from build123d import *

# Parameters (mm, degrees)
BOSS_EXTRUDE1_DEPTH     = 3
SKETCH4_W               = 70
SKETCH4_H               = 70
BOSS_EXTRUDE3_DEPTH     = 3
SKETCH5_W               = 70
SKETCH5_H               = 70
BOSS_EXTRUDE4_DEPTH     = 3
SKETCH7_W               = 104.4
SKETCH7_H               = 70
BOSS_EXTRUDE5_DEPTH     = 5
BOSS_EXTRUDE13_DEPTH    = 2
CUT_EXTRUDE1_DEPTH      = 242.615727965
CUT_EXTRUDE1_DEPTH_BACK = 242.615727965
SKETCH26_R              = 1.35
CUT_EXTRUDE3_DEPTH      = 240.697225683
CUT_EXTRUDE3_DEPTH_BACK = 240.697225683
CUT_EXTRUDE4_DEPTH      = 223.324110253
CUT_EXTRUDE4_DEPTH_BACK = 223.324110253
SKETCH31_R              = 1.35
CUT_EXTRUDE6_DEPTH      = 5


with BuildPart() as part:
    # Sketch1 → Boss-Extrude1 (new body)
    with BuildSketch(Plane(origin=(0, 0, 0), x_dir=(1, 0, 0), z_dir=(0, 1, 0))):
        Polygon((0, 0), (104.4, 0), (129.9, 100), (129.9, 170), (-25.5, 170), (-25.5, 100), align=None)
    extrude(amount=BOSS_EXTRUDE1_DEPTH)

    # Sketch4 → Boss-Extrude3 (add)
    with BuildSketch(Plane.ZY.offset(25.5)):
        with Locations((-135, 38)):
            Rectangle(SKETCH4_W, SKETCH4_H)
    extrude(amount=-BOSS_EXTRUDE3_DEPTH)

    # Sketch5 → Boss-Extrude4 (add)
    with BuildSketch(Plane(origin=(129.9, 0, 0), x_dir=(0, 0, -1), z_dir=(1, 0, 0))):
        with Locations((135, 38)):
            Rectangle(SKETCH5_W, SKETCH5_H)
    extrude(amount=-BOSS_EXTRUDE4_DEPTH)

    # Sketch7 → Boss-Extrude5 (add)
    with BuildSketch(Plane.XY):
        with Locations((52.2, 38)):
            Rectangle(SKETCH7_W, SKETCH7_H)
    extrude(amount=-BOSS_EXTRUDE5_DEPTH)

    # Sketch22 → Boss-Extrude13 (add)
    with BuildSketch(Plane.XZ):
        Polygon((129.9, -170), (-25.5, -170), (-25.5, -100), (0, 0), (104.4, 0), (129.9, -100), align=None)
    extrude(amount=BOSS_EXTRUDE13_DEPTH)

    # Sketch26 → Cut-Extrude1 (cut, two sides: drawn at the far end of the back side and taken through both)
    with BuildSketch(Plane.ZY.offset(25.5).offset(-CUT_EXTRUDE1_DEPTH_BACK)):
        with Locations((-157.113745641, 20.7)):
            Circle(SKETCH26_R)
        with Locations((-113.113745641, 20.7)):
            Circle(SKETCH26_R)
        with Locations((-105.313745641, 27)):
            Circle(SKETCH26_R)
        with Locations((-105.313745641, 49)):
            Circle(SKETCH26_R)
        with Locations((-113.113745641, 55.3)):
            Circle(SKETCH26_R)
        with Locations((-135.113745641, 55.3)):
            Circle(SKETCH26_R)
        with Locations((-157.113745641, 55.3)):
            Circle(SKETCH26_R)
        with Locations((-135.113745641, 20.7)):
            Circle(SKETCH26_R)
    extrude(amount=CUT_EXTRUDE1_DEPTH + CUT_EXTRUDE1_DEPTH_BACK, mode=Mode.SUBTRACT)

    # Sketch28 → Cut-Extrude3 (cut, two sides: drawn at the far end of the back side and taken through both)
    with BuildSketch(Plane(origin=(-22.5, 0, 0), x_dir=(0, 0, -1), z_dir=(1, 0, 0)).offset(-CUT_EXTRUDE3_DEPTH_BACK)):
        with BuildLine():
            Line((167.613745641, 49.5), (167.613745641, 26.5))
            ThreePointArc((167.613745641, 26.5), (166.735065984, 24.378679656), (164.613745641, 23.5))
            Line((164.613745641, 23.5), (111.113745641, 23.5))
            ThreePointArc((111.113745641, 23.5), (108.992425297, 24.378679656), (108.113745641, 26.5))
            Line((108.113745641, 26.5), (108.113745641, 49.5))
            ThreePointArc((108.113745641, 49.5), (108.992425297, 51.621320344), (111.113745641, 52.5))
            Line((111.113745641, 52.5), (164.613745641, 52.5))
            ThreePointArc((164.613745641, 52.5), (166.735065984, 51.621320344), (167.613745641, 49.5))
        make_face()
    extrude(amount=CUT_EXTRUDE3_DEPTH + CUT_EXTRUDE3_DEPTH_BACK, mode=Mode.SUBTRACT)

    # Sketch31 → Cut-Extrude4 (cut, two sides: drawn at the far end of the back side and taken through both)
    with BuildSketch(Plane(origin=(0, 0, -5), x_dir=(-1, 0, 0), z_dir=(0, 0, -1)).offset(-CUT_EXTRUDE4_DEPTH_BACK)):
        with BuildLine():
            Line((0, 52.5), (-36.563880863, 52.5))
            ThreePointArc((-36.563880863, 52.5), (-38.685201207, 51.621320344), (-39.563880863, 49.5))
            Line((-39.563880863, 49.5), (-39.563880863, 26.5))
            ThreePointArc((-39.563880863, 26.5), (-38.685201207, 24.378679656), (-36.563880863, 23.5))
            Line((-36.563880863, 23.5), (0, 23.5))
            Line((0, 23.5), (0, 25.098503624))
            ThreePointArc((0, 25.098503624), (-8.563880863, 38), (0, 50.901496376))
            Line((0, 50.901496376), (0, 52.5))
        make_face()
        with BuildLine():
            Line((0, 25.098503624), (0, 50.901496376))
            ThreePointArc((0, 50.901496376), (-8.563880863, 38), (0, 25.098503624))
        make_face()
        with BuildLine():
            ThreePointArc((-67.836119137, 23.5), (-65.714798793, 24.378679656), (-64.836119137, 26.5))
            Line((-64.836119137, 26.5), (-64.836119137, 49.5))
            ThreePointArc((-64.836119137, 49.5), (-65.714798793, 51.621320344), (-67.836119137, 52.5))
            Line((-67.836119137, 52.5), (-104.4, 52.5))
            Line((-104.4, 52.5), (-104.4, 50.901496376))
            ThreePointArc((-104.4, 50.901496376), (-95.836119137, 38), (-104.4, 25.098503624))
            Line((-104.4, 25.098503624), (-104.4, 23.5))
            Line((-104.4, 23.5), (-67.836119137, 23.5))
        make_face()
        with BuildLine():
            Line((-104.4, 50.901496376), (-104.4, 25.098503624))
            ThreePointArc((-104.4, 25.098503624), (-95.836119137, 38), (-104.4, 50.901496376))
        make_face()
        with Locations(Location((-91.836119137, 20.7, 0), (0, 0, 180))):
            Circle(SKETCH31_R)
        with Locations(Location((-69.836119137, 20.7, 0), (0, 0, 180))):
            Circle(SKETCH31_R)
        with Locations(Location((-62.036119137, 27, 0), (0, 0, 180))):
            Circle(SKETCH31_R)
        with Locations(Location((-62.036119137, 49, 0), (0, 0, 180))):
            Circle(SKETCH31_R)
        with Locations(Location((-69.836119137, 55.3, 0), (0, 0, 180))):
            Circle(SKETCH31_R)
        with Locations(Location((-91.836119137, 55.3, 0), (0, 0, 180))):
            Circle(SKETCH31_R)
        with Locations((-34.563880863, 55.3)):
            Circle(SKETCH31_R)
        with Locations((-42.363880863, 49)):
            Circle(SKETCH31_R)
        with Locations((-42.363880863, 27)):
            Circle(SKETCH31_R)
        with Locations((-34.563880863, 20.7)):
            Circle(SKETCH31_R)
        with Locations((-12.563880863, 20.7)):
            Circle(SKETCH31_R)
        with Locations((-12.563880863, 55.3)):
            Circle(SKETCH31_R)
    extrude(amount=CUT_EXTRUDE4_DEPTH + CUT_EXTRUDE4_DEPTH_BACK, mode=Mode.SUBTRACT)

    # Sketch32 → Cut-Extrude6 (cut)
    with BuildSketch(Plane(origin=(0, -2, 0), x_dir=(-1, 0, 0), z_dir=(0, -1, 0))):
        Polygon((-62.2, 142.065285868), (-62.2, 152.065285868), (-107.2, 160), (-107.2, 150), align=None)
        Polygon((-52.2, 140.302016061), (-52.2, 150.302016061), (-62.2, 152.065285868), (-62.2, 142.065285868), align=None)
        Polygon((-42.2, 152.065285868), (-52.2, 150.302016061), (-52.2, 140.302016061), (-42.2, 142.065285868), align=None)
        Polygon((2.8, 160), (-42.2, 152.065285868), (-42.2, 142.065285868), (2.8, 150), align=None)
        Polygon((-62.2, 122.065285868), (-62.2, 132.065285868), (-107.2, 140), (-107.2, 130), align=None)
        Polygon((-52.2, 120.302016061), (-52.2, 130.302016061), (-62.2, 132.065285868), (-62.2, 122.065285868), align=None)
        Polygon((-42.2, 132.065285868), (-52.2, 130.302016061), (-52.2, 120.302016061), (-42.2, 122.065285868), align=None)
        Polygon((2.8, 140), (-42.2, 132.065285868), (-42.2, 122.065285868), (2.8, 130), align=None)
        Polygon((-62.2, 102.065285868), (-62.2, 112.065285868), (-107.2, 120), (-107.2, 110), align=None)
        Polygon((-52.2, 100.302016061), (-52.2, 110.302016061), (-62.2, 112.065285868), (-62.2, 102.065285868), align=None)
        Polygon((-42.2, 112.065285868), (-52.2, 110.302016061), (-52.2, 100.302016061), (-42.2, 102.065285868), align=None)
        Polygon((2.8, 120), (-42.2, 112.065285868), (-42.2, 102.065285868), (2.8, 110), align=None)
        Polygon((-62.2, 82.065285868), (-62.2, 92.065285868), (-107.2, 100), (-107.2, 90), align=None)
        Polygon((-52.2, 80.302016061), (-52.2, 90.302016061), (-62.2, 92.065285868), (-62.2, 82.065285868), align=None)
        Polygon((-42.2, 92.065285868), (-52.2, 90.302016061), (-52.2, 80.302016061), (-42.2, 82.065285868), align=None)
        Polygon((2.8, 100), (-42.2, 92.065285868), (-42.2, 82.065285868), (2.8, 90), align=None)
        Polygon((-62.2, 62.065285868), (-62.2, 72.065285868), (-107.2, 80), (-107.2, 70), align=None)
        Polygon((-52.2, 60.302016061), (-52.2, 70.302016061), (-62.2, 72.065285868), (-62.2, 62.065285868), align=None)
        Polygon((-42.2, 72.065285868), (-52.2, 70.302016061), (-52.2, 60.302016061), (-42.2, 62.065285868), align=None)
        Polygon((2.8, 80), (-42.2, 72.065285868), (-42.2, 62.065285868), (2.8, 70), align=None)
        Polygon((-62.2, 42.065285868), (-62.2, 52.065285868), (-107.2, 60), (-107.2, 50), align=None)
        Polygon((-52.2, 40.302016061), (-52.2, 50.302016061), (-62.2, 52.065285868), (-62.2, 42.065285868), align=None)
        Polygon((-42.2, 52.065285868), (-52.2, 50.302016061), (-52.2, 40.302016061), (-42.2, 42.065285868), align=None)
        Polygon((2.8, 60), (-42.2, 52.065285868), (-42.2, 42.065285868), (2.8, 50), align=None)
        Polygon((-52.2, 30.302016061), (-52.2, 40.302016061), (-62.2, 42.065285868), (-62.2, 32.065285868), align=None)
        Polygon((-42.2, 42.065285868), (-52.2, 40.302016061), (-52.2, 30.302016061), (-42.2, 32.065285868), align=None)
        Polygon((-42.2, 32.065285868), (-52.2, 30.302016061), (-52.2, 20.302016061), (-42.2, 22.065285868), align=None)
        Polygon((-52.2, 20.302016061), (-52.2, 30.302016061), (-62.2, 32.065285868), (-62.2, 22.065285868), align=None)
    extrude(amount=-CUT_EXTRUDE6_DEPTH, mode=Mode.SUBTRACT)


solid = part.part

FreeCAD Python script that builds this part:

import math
import FreeCAD as App
import Part
import Sketcher

V = App.Vector
Q = App.Units.Quantity

doc = App.newDocument("Part")
body = doc.addObject("PartDesign::Body", "Body")

# Sketch on XZ plane
sketch1 = doc.addObject("Sketcher::SketchObject", "Sketch")
body.addObject(sketch1)
sketch1.AttachmentSupport = (doc.XZ_Plane, [""])
sketch1.MapMode = "FlatFace"
sketch1.addGeometry([
    Part.LineSegment(V(0, 0, 0), V(104.4, 0, 0)),  # 0
    Part.LineSegment(V(104.4, 0, 0), V(129.9, -100, 0)),  # 1
    Part.LineSegment(V(129.9, -100, 0), V(129.9, -170, 0)),  # 2
    Part.LineSegment(V(129.9, -170, 0), V(-25.5, -170, 0)),  # 3
    Part.LineSegment(V(-25.5, -170, 0), V(-25.5, -100, 0)),  # 4
    Part.LineSegment(V(-25.5, -100, 0), V(0, 0, 0)),  # 5
], False)
sketch1.addConstraint([
    Sketcher.Constraint("Coincident", 0, 2, 1, 1),
    Sketcher.Constraint("Coincident", 1, 2, 2, 1),
    Sketcher.Constraint("Coincident", 2, 2, 3, 1),
    Sketcher.Constraint("Coincident", 3, 2, 4, 1),
    Sketcher.Constraint("Coincident", 4, 2, 5, 1),
    Sketcher.Constraint("Coincident", 5, 2, 0, 1),
    Sketcher.Constraint("Horizontal", 0),
    Sketcher.Constraint("Vertical", 2),
    Sketcher.Constraint("Horizontal", 3),
    Sketcher.Constraint("Vertical", 4),
    Sketcher.Constraint("Coincident", 5, 2, -1, 1),
    Sketcher.Constraint("Horizontal", 1, 2, 4, 2),
    Sketcher.Constraint("Equal", 1, 5),
    Sketcher.Constraint("DistanceY", 2, 2, 2, 1, 70.0),
    Sketcher.Constraint("DistanceX", 0, 1, 0, 2, 104.4),
    Sketcher.Constraint("DistanceX", 3, 2, 3, 1, 155.4),
    Sketcher.Constraint("DistanceY", 1, 2, -1, 1, 100.0),
])
pad1 = doc.addObject("PartDesign::Pad", "Pad")
body.addObject(pad1)
pad1.Profile = sketch1
pad1.Length = 3
pad1.Reversed = True

# Sketch on YZ plane
sketch2 = doc.addObject("Sketcher::SketchObject", "Sketch001")
body.addObject(sketch2)
sketch2.AttachmentSupport = (doc.YZ_Plane, [""])
sketch2.MapMode = "FlatFace"
sketch2.AttachmentOffset = App.Placement(V(0, 0, -25.5), App.Rotation())
sketch2.addGeometry([
    Part.LineSegment(V(73, -170, 0), V(3, -170, 0)),
    Part.LineSegment(V(3, -170, 0), V(3, -100, 0)),
    Part.LineSegment(V(3, -100, 0), V(73, -100, 0)),
    Part.LineSegment(V(73, -100, 0), V(73, -170, 0)),
], False)
sketch2.addConstraint([
    Sketcher.Constraint("Coincident", 0, 2, 1, 1),
    Sketcher.Constraint("Coincident", 1, 2, 2, 1),
    Sketcher.Constraint("Coincident", 2, 2, 3, 1),
    Sketcher.Constraint("Coincident", 3, 2, 0, 1),
    Sketcher.Constraint("Horizontal", 0),
    Sketcher.Constraint("Vertical", 1),
    Sketcher.Constraint("Horizontal", 2),
    Sketcher.Constraint("Vertical", 3),
    Sketcher.Constraint("Equal", 2, 1),
    Sketcher.Constraint("DistanceX", 0, 2, 0, 1, 70.0),
    Sketcher.Constraint("DistanceX", -1, 1, 0, 2, 3.0),
    Sketcher.Constraint("DistanceY", 0, 2, -1, 1, 170.0),
])
pad2 = doc.addObject("PartDesign::Pad", "Pad001")
body.addObject(pad2)
pad2.Profile = sketch2
pad2.Length = 3

# Sketch on YZ plane
sketch3 = doc.addObject("Sketcher::SketchObject", "Sketch002")
body.addObject(sketch3)
sketch3.AttachmentSupport = (doc.YZ_Plane, [""])
sketch3.MapMode = "FlatFace"
sketch3.AttachmentOffset = App.Placement(V(0, 0, 129.9), App.Rotation())
sketch3.addGeometry([
    Part.LineSegment(V(73, -100, 0), V(3, -100, 0)),
    Part.LineSegment(V(3, -100, 0), V(3, -170, 0)),
    Part.LineSegment(V(3, -170, 0), V(73, -170, 0)),
    Part.LineSegment(V(73, -170, 0), V(73, -100, 0)),
], False)
sketch3.addConstraint([
    Sketcher.Constraint("Coincident", 0, 2, 1, 1),
    Sketcher.Constraint("Coincident", 1, 2, 2, 1),
    Sketcher.Constraint("Coincident", 2, 2, 3, 1),
    Sketcher.Constraint("Coincident", 3, 2, 0, 1),
    Sketcher.Constraint("Horizontal", 0),
    Sketcher.Constraint("Vertical", 1),
    Sketcher.Constraint("Horizontal", 2),
    Sketcher.Constraint("Vertical", 3),
    Sketcher.Constraint("Equal", 2, 1),
    Sketcher.Constraint("DistanceX", 0, 2, 0, 1, 70.0),
    Sketcher.Constraint("DistanceX", -1, 1, 0, 2, 3.0),
    Sketcher.Constraint("DistanceY", 0, 2, -1, 1, 100.0),
])
pad3 = doc.addObject("PartDesign::Pad", "Pad002")
body.addObject(pad3)
pad3.Profile = sketch3
pad3.Length = 3
pad3.Reversed = True

# Sketch on XY plane
sketch4 = doc.addObject("Sketcher::SketchObject", "Sketch003")
body.addObject(sketch4)
sketch4.AttachmentSupport = (doc.XY_Plane, [""])
sketch4.MapMode = "FlatFace"
sketch4.addGeometry([
    Part.LineSegment(V(0, 73, 0), V(0, 3, 0)),
    Part.LineSegment(V(0, 3, 0), V(104.4, 3, 0)),
    Part.LineSegment(V(104.4, 3, 0), V(104.4, 73, 0)),
    Part.LineSegment(V(104.4, 73, 0), V(0, 73, 0)),
], False)
sketch4.addConstraint([
    Sketcher.Constraint("Coincident", 0, 2, 1, 1),
    Sketcher.Constraint("Coincident", 1, 2, 2, 1),
    Sketcher.Constraint("Coincident", 2, 2, 3, 1),
    Sketcher.Constraint("Coincident", 3, 2, 0, 1),
    Sketcher.Constraint("Vertical", 0),
    Sketcher.Constraint("Horizontal", 1),
    Sketcher.Constraint("Vertical", 2),
    Sketcher.Constraint("Horizontal", 3),
    Sketcher.Constraint("PointOnObject", 0, 2, -2),
    Sketcher.Constraint("DistanceY", 0, 2, 0, 1, 70.0),
    Sketcher.Constraint("DistanceX", 1, 1, 1, 2, 104.4),
    Sketcher.Constraint("DistanceY", -1, 1, 0, 2, 3.0),
])
pad4 = doc.addObject("PartDesign::Pad", "Pad003")
body.addObject(pad4)
pad4.Profile = sketch4
pad4.Length = 5
pad4.Reversed = True

# Sketch on XZ plane
sketch5 = doc.addObject("Sketcher::SketchObject", "Sketch004")
body.addObject(sketch5)
sketch5.AttachmentSupport = (doc.XZ_Plane, [""])
sketch5.MapMode = "FlatFace"
sketch5.addGeometry([
    Part.LineSegment(V(-25.5, -170, 0), V(129.9, -170, 0)),  # 0
    Part.LineSegment(V(129.9, -170, 0), V(129.9, -100, 0)),  # 1
    Part.LineSegment(V(129.9, -100, 0), V(104.4, 0, 0)),  # 2
    Part.LineSegment(V(104.4, 0, 0), V(0, 0, 0)),  # 3
    Part.LineSegment(V(0, 0, 0), V(-25.5, -100, 0)),  # 4
    Part.LineSegment(V(-25.5, -100, 0), V(-25.5, -170, 0)),  # 5
], False)
sketch5.addConstraint([
    Sketcher.Constraint("Coincident", 0, 2, 1, 1),
    Sketcher.Constraint("Coincident", 1, 2, 2, 1),
    Sketcher.Constraint("Coincident", 2, 2, 3, 1),
    Sketcher.Constraint("Coincident", 3, 2, 4, 1),
    Sketcher.Constraint("Coincident", 4, 2, 5, 1),
    Sketcher.Constraint("Coincident", 5, 2, 0, 1),
    Sketcher.Constraint("Horizontal", 0),
    Sketcher.Constraint("Vertical", 1),
    Sketcher.Constraint("Horizontal", 3),
    Sketcher.Constraint("Vertical", 5),
    Sketcher.Constraint("Coincident", 3, 2, -1, 1),
    Sketcher.Constraint("Horizontal", 1, 2, 4, 2),
    Sketcher.Constraint("Equal", 2, 4),
    Sketcher.Constraint("DistanceY", 1, 1, 1, 2, 70.0),
    Sketcher.Constraint("DistanceX", 0, 1, 0, 2, 155.4),
    Sketcher.Constraint("DistanceX", 3, 2, 3, 1, 104.4),
    Sketcher.Constraint("DistanceY", 0, 2, -1, 1, 170.0),
])
pad5 = doc.addObject("PartDesign::Pad", "Pad004")
body.addObject(pad5)
pad5.Profile = sketch5
pad5.Length = 2

# Sketch on YZ plane
sketch6 = doc.addObject("Sketcher::SketchObject", "Sketch005")
body.addObject(sketch6)
sketch6.AttachmentSupport = (doc.YZ_Plane, [""])
sketch6.MapMode = "FlatFace"
sketch6.AttachmentOffset = App.Placement(V(0, 0, -25.5), App.Rotation())
sketch6.addGeometry([
    Part.Circle(V(20.7, -157.113746, 0), V(0, 0, 1), 1.35),  # 0
    Part.Circle(V(20.7, -113.113746, 0), V(0, 0, 1), 1.35),  # 1
    Part.Circle(V(27, -105.313746, 0), V(0, 0, 1), 1.35),  # 2
    Part.Circle(V(49, -105.313746, 0), V(0, 0, 1), 1.35),  # 3
    Part.Circle(V(55.3, -113.113746, 0), V(0, 0, 1), 1.35),  # 4
    Part.Circle(V(55.3, -135.113746, 0), V(0, 0, 1), 1.35),  # 5
    Part.Circle(V(55.3, -157.113746, 0), V(0, 0, 1), 1.35),  # 6
    Part.Circle(V(20.7, -135.113746, 0), V(0, 0, 1), 1.35),  # 7
], False)
sketch6.addConstraint([
    Sketcher.Constraint("Equal", 0, 1),
    Sketcher.Constraint("Equal", 1, 2),
    Sketcher.Constraint("Equal", 2, 3),
    Sketcher.Constraint("Equal", 3, 4),
    Sketcher.Constraint("Equal", 4, 5),
    Sketcher.Constraint("Equal", 5, 6),
    Sketcher.Constraint("Equal", 6, 7),
    Sketcher.Constraint("Horizontal", 2, 3, 3, 3),
    Sketcher.Constraint("Horizontal", 1, 3, 4, 3),
    Sketcher.Constraint("Horizontal", 0, 3, 6, 3),
    Sketcher.Constraint("Horizontal", 5, 3, 7, 3),
    Sketcher.Constraint("Vertical", 0, 3, 1, 3),
    Sketcher.Constraint("Vertical", 4, 3, 5, 3),
    Sketcher.Constraint("Vertical", 5, 3, 6, 3),
    Sketcher.Constraint("Vertical", 1, 3, 7, 3),
    Sketcher.Constraint("Diameter", 0, 2.7),
    Sketcher.Constraint("DistanceX", -1, 1, 2, 3, 27.0),
    Sketcher.Constraint("DistanceX", -1, 1, 3, 3, 49.0),
    Sketcher.Constraint("DistanceY", 0, 3, 1, 3, 44.0),
    Sketcher.Constraint("DistanceY", 5, 3, 4, 3, 22.0),
    Sketcher.Constraint("DistanceX", -1, 1, 0, 3, 20.7),
    Sketcher.Constraint("DistanceX", -1, 1, 4, 3, 55.3),
    Sketcher.Constraint("DistanceY", 1, 3, 2, 3, 7.8),
    Sketcher.Constraint("DistanceY", 0, 3, -1, 1, 157.113746),
])
pocket1 = doc.addObject("PartDesign::Pocket", "Pocket")
body.addObject(pocket1)
pocket1.Profile = sketch6
pocket1.Type = "ThroughAll"
pocket1.Midplane = True

# Sketch on YZ plane
sketch7 = doc.addObject("Sketcher::SketchObject", "Sketch006")
body.addObject(sketch7)
sketch7.AttachmentSupport = (doc.YZ_Plane, [""])
sketch7.MapMode = "FlatFace"
sketch7.AttachmentOffset = App.Placement(V(0, 0, -22.5), App.Rotation())
sketch7.addGeometry([
    Part.LineSegment(V(26.5, -167.613746, 0), V(49.5, -167.613746, 0)),  # 0
    Part.ArcOfCircle(Part.Circle(V(49.5, -164.613746, 0), V(0, 0, 1), 3), math.radians(-90), math.radians(0)),  # 1
    Part.LineSegment(V(52.5, -164.613746, 0), V(52.5, -111.113746, 0)),  # 2
    Part.ArcOfCircle(Part.Circle(V(49.5, -111.113746, 0), V(0, 0, 1), 3), math.radians(0), math.radians(90)),  # 3
    Part.LineSegment(V(49.5, -108.113746, 0), V(26.5, -108.113746, 0)),  # 4
    Part.ArcOfCircle(Part.Circle(V(26.5, -111.113746, 0), V(0, 0, 1), 3), math.radians(90), math.radians(180)),  # 5
    Part.LineSegment(V(23.5, -111.113746, 0), V(23.5, -164.613746, 0)),  # 6
    Part.ArcOfCircle(Part.Circle(V(26.5, -164.613746, 0), V(0, 0, 1), 3), math.radians(180), math.radians(270)),  # 7
], False)
sketch7.addConstraint([
    Sketcher.Constraint("Tangent", 0, 2, 1, 1),
    Sketcher.Constraint("Tangent", 1, 2, 2, 1),
    Sketcher.Constraint("Tangent", 2, 2, 3, 1),
    Sketcher.Constraint("Tangent", 3, 2, 4, 1),
    Sketcher.Constraint("Tangent", 4, 2, 5, 1),
    Sketcher.Constraint("Tangent", 5, 2, 6, 1),
    Sketcher.Constraint("Tangent", 6, 2, 7, 1),
    Sketcher.Constraint("Tangent", 7, 2, 0, 1),
    Sketcher.Constraint("Horizontal", 0),
    Sketcher.Constraint("Vertical", 2),
    Sketcher.Constraint("Horizontal", 4),
    Sketcher.Constraint("Vertical", 6),
    Sketcher.Constraint("Equal", 1, 3),
    Sketcher.Constraint("Equal", 3, 5),
    Sketcher.Constraint("Equal", 5, 7),
    Sketcher.Constraint("Radius", 1, 3.0),
    Sketcher.Constraint("DistanceX", 0, 1, 0, 2, 23.0),
    Sketcher.Constraint("DistanceY", 2, 1, 2, 2, 53.5),
    Sketcher.Constraint("DistanceX", -1, 1, 1, 3, 49.5),
    Sketcher.Constraint("DistanceY", 1, 3, -1, 1, 164.613746),
])
pocket2 = doc.addObject("PartDesign::Pocket", "Pocket001")
body.addObject(pocket2)
pocket2.Profile = sketch7
pocket2.Type = "ThroughAll"
pocket2.Midplane = True

# Sketch on XY plane
sketch8 = doc.addObject("Sketcher::SketchObject", "Sketch007")
body.addObject(sketch8)
sketch8.AttachmentSupport = (doc.XY_Plane, [""])
sketch8.MapMode = "FlatFace"
sketch8.AttachmentOffset = App.Placement(V(0, 0, -5), App.Rotation())
sketch8.addGeometry([
    Part.LineSegment(V(0, 52.5, 0), V(36.563881, 52.5, 0)),  # 0
    Part.ArcOfCircle(Part.Circle(V(36.563881, 49.5, 0), V(0, 0, 1), 3), math.radians(0), math.radians(90)),  # 1
    Part.LineSegment(V(39.563881, 49.5, 0), V(39.563881, 26.5, 0)),  # 2
    Part.ArcOfCircle(Part.Circle(V(36.563881, 26.5, 0), V(0, 0, 1), 3), math.radians(-90), math.radians(0)),  # 3
    Part.LineSegment(V(36.563881, 23.5, 0), V(0, 23.5, 0)),  # 4
    Part.LineSegment(V(0, 23.5, 0), V(0, 52.5, 0)),  # 5
    Part.ArcOfCircle(Part.Circle(V(67.836119, 26.5, 0), V(0, 0, 1), 3), math.radians(180), math.radians(270)),  # 6
    Part.LineSegment(V(64.836119, 26.5, 0), V(64.836119, 49.5, 0)),  # 7
    Part.ArcOfCircle(Part.Circle(V(67.836119, 49.5, 0), V(0, 0, 1), 3), math.radians(90), math.radians(180)),  # 8
    Part.LineSegment(V(67.836119, 52.5, 0), V(104.4, 52.5, 0)),  # 9
    Part.LineSegment(V(104.4, 52.5, 0), V(104.4, 23.5, 0)),  # 10
    Part.LineSegment(V(104.4, 23.5, 0), V(67.836119, 23.5, 0)),  # 11
    Part.Circle(V(91.836119, 20.7, 0), V(0, 0, 1), 1.35),  # 12
    Part.Circle(V(69.836119, 20.7, 0), V(0, 0, 1), 1.35),  # 13
    Part.Circle(V(62.036119, 27, 0), V(0, 0, 1), 1.35),  # 14
    Part.Circle(V(62.036119, 49, 0), V(0, 0, 1), 1.35),  # 15
    Part.Circle(V(69.836119, 55.3, 0), V(0, 0, 1), 1.35),  # 16
    Part.Circle(V(91.836119, 55.3, 0), V(0, 0, 1), 1.35),  # 17
    Part.Circle(V(34.563881, 55.3, 0), V(0, 0, 1), 1.35),  # 18
    Part.Circle(V(42.363881, 49, 0), V(0, 0, 1), 1.35),  # 19
    Part.Circle(V(42.363881, 27, 0), V(0, 0, 1), 1.35),  # 20
    Part.Circle(V(34.563881, 20.7, 0), V(0, 0, 1), 1.35),  # 21
    Part.Circle(V(12.563881, 20.7, 0), V(0, 0, 1), 1.35),  # 22
    Part.Circle(V(12.563881, 55.3, 0), V(0, 0, 1), 1.35),  # 23
], False)
sketch8.addConstraint([
    Sketcher.Constraint("Tangent", 0, 2, 1, 2),
    Sketcher.Constraint("Tangent", 1, 1, 2, 1),
    Sketcher.Constraint("Tangent", 2, 2, 3, 2),
    Sketcher.Constraint("Tangent", 3, 1, 4, 1),
    Sketcher.Constraint("Coincident", 4, 2, 5, 1),
    Sketcher.Constraint("Coincident", 5, 2, 0, 1),
    Sketcher.Constraint("Tangent", 6, 1, 7, 1),
    Sketcher.Constraint("Tangent", 7, 2, 8, 2),
    Sketcher.Constraint("Tangent", 8, 1, 9, 1),
    Sketcher.Constraint("Coincident", 9, 2, 10, 1),
    Sketcher.Constraint("Coincident", 10, 2, 11, 1),
    Sketcher.Constraint("Tangent", 11, 2, 6, 2),
    Sketcher.Constraint("Horizontal", 0),
    Sketcher.Constraint("Vertical", 2),
    Sketcher.Constraint("Horizontal", 4),
    Sketcher.Constraint("Vertical", 5),
    Sketcher.Constraint("Vertical", 7),
    Sketcher.Constraint("Horizontal", 9),
    Sketcher.Constraint("Vertical", 10),
    Sketcher.Constraint("Horizontal", 11),
    Sketcher.Constraint("Equal", 1, 3),
    Sketcher.Constraint("Equal", 3, 6),
    Sketcher.Constraint("Equal", 6, 8),
    Sketcher.Constraint("Equal", 12, 13),
    Sketcher.Constraint("Equal", 13, 14),
    Sketcher.Constraint("Equal", 14, 15),
    Sketcher.Constraint("Equal", 15, 16),
    Sketcher.Constraint("Equal", 16, 17),
    Sketcher.Constraint("Equal", 17, 18),
    Sketcher.Constraint("Equal", 18, 19),
    Sketcher.Constraint("Equal", 19, 20),
    Sketcher.Constraint("Equal", 20, 21),
    Sketcher.Constraint("Equal", 21, 22),
    Sketcher.Constraint("Equal", 22, 23),
    Sketcher.Constraint("PointOnObject", 4, 2, -2),
    Sketcher.Constraint("Horizontal", 3, 3, 6, 3),
    Sketcher.Constraint("Horizontal", 1, 3, 8, 3),
    Sketcher.Constraint("Horizontal", 12, 3, 13, 3),
    Sketcher.Constraint("Horizontal", 16, 3, 17, 3),
    Sketcher.Constraint("Horizontal", 17, 3, 18, 3),
    Sketcher.Constraint("Horizontal", 15, 3, 19, 3),
    Sketcher.Constraint("Horizontal", 14, 3, 20, 3),
    Sketcher.Constraint("Horizontal", 13, 3, 21, 3),
    Sketcher.Constraint("Horizontal", 21, 3, 22, 3),
    Sketcher.Constraint("Horizontal", 18, 3, 23, 3),
    Sketcher.Constraint("Vertical", 14, 3, 15, 3),
    Sketcher.Constraint("Vertical", 13, 3, 16, 3),
    Sketcher.Constraint("Vertical", 12, 3, 17, 3),
    Sketcher.Constraint("Vertical", 19, 3, 20, 3),
    Sketcher.Constraint("Vertical", 18, 3, 21, 3),
    Sketcher.Constraint("Vertical", 22, 3, 23, 3),
    Sketcher.Constraint("Equal", 4, 9),
    Sketcher.Constraint("Radius", 1, 3.0),
    Sketcher.Constraint("Diameter", 12, 2.7),
    Sketcher.Constraint("DistanceY", 2, 2, 2, 1, 23.0),
    Sketcher.Constraint("DistanceY", -1, 1, 14, 3, 27.0),
    Sketcher.Constraint("DistanceY", -1, 1, 15, 3, 49.0),
    Sketcher.Constraint("DistanceX", 6, 3, 12, 3, 24.0),
    Sketcher.Constraint("DistanceX", 6, 3, 13, 3, 2.0),
    Sketcher.Constraint("DistanceX", 18, 3, 1, 3, 2.0),
    Sketcher.Constraint("DistanceX", 22, 3, 21, 3, 22.0),
    Sketcher.Constraint("DistanceY", -1, 1, 1, 3, 49.5),
    Sketcher.Constraint("DistanceY", -1, 1, 12, 3, 20.7),
    Sketcher.Constraint("DistanceY", -1, 1, 16, 3, 55.3),
    Sketcher.Constraint("DistanceX", -1, 1, 9, 2, 104.4),
    Sketcher.Constraint("DistanceX", 14, 3, 6, 3, 5.8),
    Sketcher.Constraint("DistanceX", 1, 3, 19, 3, 5.8),
    Sketcher.Constraint("DistanceX", 0, 1, 0, 2, 36.563881),
])
pocket3 = doc.addObject("PartDesign::Pocket", "Pocket002")
body.addObject(pocket3)
pocket3.Profile = sketch8
pocket3.Type = "ThroughAll"
pocket3.Midplane = True

# Sketch on XZ plane
sketch9 = doc.addObject("Sketcher::SketchObject", "Sketch008")
body.addObject(sketch9)
sketch9.AttachmentSupport = (doc.XZ_Plane, [""])
sketch9.MapMode = "FlatFace"
sketch9.AttachmentOffset = App.Placement(V(0, 0, 2), App.Rotation())
sketch9.addGeometry([
    Part.LineSegment(V(62.2, -152.065286, 0), V(107.2, -160, 0)),  # 0
    Part.LineSegment(V(107.2, -160, 0), V(107.2, -150, 0)),  # 1
    Part.LineSegment(V(107.2, -150, 0), V(62.2, -142.065286, 0)),  # 2
    Part.LineSegment(V(62.2, -142.065286, 0), V(52.2, -140.302016, 0)),  # 3
    Part.LineSegment(V(52.2, -140.302016, 0), V(42.2, -142.065286, 0)),  # 4
    Part.LineSegment(V(42.2, -142.065286, 0), V(-2.8, -150, 0)),  # 5
    Part.LineSegment(V(-2.8, -150, 0), V(-2.8, -160, 0)),  # 6
    Part.LineSegment(V(-2.8, -160, 0), V(42.2, -152.065286, 0)),  # 7
    Part.LineSegment(V(42.2, -152.065286, 0), V(52.2, -150.302016, 0)),  # 8
    Part.LineSegment(V(52.2, -150.302016, 0), V(62.2, -152.065286, 0)),  # 9
    Part.LineSegment(V(62.2, -132.065286, 0), V(107.2, -140, 0)),  # 10
    Part.LineSegment(V(107.2, -140, 0), V(107.2, -130, 0)),  # 11
    Part.LineSegment(V(107.2, -130, 0), V(62.2, -122.065286, 0)),  # 12
    Part.LineSegment(V(62.2, -122.065286, 0), V(52.2, -120.302016, 0)),  # 13
    Part.LineSegment(V(52.2, -120.302016, 0), V(42.2, -122.065286, 0)),  # 14
    Part.LineSegment(V(42.2, -122.065286, 0), V(-2.8, -130, 0)),  # 15
    Part.LineSegment(V(-2.8, -130, 0), V(-2.8, -140, 0)),  # 16
    Part.LineSegment(V(-2.8, -140, 0), V(42.2, -132.065286, 0)),  # 17
    Part.LineSegment(V(42.2, -132.065286, 0), V(52.2, -130.302016, 0)),  # 18
    Part.LineSegment(V(52.2, -130.302016, 0), V(62.2, -132.065286, 0)),  # 19
    Part.LineSegment(V(62.2, -112.065286, 0), V(107.2, -120, 0)),  # 20
    Part.LineSegment(V(107.2, -120, 0), V(107.2, -110, 0)),  # 21
    Part.LineSegment(V(107.2, -110, 0), V(62.2, -102.065286, 0)),  # 22
    Part.LineSegment(V(62.2, -102.065286, 0), V(52.2, -100.302016, 0)),  # 23
    Part.LineSegment(V(52.2, -100.302016, 0), V(42.2, -102.065286, 0)),  # 24
    Part.LineSegment(V(42.2, -102.065286, 0), V(-2.8, -110, 0)),  # 25
    Part.LineSegment(V(-2.8, -110, 0), V(-2.8, -120, 0)),  # 26
    Part.LineSegment(V(-2.8, -120, 0), V(42.2, -112.065286, 0)),  # 27
    Part.LineSegment(V(42.2, -112.065286, 0), V(52.2, -110.302016, 0)),  # 28
    Part.LineSegment(V(52.2, -110.302016, 0), V(62.2, -112.065286, 0)),  # 29
    Part.LineSegment(V(62.2, -92.065286, 0), V(107.2, -100, 0)),  # 30
    Part.LineSegment(V(107.2, -100, 0), V(107.2, -90, 0)),  # 31
    Part.LineSegment(V(107.2, -90, 0), V(62.2, -82.065286, 0)),  # 32
    Part.LineSegment(V(62.2, -82.065286, 0), V(52.2, -80.302016, 0)),  # 33
    Part.LineSegment(V(52.2, -80.302016, 0), V(42.2, -82.065286, 0)),  # 34
    Part.LineSegment(V(42.2, -82.065286, 0), V(-2.8, -90, 0)),  # 35
    Part.LineSegment(V(-2.8, -90, 0), V(-2.8, -100, 0)),  # 36
    Part.LineSegment(V(-2.8, -100, 0), V(42.2, -92.065286, 0)),  # 37
    Part.LineSegment(V(42.2, -92.065286, 0), V(52.2, -90.302016, 0)),  # 38
    Part.LineSegment(V(52.2, -90.302016, 0), V(62.2, -92.065286, 0)),  # 39
    Part.LineSegment(V(62.2, -72.065286, 0), V(107.2, -80, 0)),  # 40
    Part.LineSegment(V(107.2, -80, 0), V(107.2, -70, 0)),  # 41
    Part.LineSegment(V(107.2, -70, 0), V(62.2, -62.065286, 0)),  # 42
    Part.LineSegment(V(62.2, -62.065286, 0), V(52.2, -60.302016, 0)),  # 43
    Part.LineSegment(V(52.2, -60.302016, 0), V(42.2, -62.065286, 0)),  # 44
    Part.LineSegment(V(42.2, -62.065286, 0), V(-2.8, -70, 0)),  # 45
    Part.LineSegment(V(-2.8, -70, 0), V(-2.8, -80, 0)),  # 46
    Part.LineSegment(V(-2.8, -80, 0), V(42.2, -72.065286, 0)),  # 47
    Part.LineSegment(V(42.2, -72.065286, 0), V(52.2, -70.302016, 0)),  # 48
    Part.LineSegment(V(52.2, -70.302016, 0), V(62.2, -72.065286, 0)),  # 49
    Part.LineSegment(V(62.2, -52.065286, 0), V(107.2, -60, 0)),  # 50
    Part.LineSegment(V(107.2, -60, 0), V(107.2, -50, 0)),  # 51
    Part.LineSegment(V(107.2, -50, 0), V(62.2, -42.065286, 0)),  # 52
    Part.LineSegment(V(62.2, -42.065286, 0), V(62.2, -22.065286, 0)),  # 53
    Part.LineSegment(V(62.2, -22.065286, 0), V(52.2, -20.302016, 0)),  # 54
    Part.LineSegment(V(52.2, -20.302016, 0), V(42.2, -22.065286, 0)),  # 55
    Part.LineSegment(V(42.2, -22.065286, 0), V(42.2, -42.065286, 0)),  # 56
    Part.LineSegment(V(42.2, -42.065286, 0), V(-2.8, -50, 0)),  # 57
    Part.LineSegment(V(-2.8, -50, 0), V(-2.8, -60, 0)),  # 58
    Part.LineSegment(V(-2.8, -60, 0), V(42.2, -52.065286, 0)),  # 59
    Part.LineSegment(V(42.2, -52.065286, 0), V(52.2, -50.302016, 0)),  # 60
    Part.LineSegment(V(52.2, -50.302016, 0), V(62.2, -52.065286, 0)),  # 61
], False)
sketch9.addConstraint([
    Sketcher.Constraint("Coincident", 0, 2, 1, 1),
    Sketcher.Constraint("Coincident", 1, 2, 2, 1),
    Sketcher.Constraint("Coincident", 2, 2, 3, 1),
    Sketcher.Constraint("Coincident", 3, 2, 4, 1),
    Sketcher.Constraint("Coincident", 4, 2, 5, 1),
    Sketcher.Constraint("Coincident", 5, 2, 6, 1),
    Sketcher.Constraint("Coincident", 6, 2, 7, 1),
    Sketcher.Constraint("Coincident", 7, 2, 8, 1),
    Sketcher.Constraint("Coincident", 8, 2, 9, 1),
    Sketcher.Constraint("Coincident", 9, 2, 0, 1),
    Sketcher.Constraint("Coincident", 10, 2, 11, 1),
    Sketcher.Constraint("Coincident", 11, 2, 12, 1),
    Sketcher.Constraint("Coincident", 12, 2, 13, 1),
    Sketcher.Constraint("Coincident", 13, 2, 14, 1),
    Sketcher.Constraint("Coincident", 14, 2, 15, 1),
    Sketcher.Constraint("Coincident", 15, 2, 16, 1),
    Sketcher.Constraint("Coincident", 16, 2, 17, 1),
    Sketcher.Constraint("Coincident", 17, 2, 18, 1),
    Sketcher.Constraint("Coincident", 18, 2, 19, 1),
    Sketcher.Constraint("Coincident", 19, 2, 10, 1),
    Sketcher.Constraint("Coincident", 20, 2, 21, 1),
    Sketcher.Constraint("Coincident", 21, 2, 22, 1),
    Sketcher.Constraint("Coincident", 22, 2, 23, 1),
    Sketcher.Constraint("Coincident", 23, 2, 24, 1),
    Sketcher.Constraint("Coincident", 24, 2, 25, 1),
    Sketcher.Constraint("Coincident", 25, 2, 26, 1),
    Sketcher.Constraint("Coincident", 26, 2, 27, 1),
    Sketcher.Constraint("Coincident", 27, 2, 28, 1),
    Sketcher.Constraint("Coincident", 28, 2, 29, 1),
    Sketcher.Constraint("Coincident", 29, 2, 20, 1),
    Sketcher.Constraint("Coincident", 30, 2, 31, 1),
    Sketcher.Constraint("Coincident", 31, 2, 32, 1),
    Sketcher.Constraint("Coincident", 32, 2, 33, 1),
    Sketcher.Constraint("Coincident", 33, 2, 34, 1),
    Sketcher.Constraint("Coincident", 34, 2, 35, 1),
    Sketcher.Constraint("Coincident", 35, 2, 36, 1),
    Sketcher.Constraint("Coincident", 36, 2, 37, 1),
    Sketcher.Constraint("Coincident", 37, 2, 38, 1),
    Sketcher.Constraint("Coincident", 38, 2, 39, 1),
    Sketcher.Constraint("Coincident", 39, 2, 30, 1),
    Sketcher.Constraint("Coincident", 40, 2, 41, 1),
    Sketcher.Constraint("Coincident", 41, 2, 42, 1),
    Sketcher.Constraint("Coincident", 42, 2, 43, 1),
    Sketcher.Constraint("Coincident", 43, 2, 44, 1),
    Sketcher.Constraint("Coincident", 44, 2, 45, 1),
    Sketcher.Constraint("Coincident", 45, 2, 46, 1),
    Sketcher.Constraint("Coincident", 46, 2, 47, 1),
    Sketcher.Constraint("Coincident", 47, 2, 48, 1),
    Sketcher.Constraint("Coincident", 48, 2, 49, 1),
    Sketcher.Constraint("Coincident", 49, 2, 40, 1),
    Sketcher.Constraint("Coincident", 50, 2, 51, 1),
    Sketcher.Constraint("Coincident", 51, 2, 52, 1),
    Sketcher.Constraint("Coincident", 52, 2, 53, 1),
    Sketcher.Constraint("Coincident", 53, 2, 54, 1),
    Sketcher.Constraint("Coincident", 54, 2, 55, 1),
    Sketcher.Constraint("Coincident", 55, 2, 56, 1),
    Sketcher.Constraint("Coincident", 56, 2, 57, 1),
    Sketcher.Constraint("Coincident", 57, 2, 58, 1),
    Sketcher.Constraint("Coincident", 58, 2, 59, 1),
    Sketcher.Constraint("Coincident", 59, 2, 60, 1),
    Sketcher.Constraint("Coincident", 60, 2, 61, 1),
    Sketcher.Constraint("Coincident", 61, 2, 50, 1),
    Sketcher.Constraint("Vertical", 1),
    Sketcher.Constraint("Vertical", 6),
    Sketcher.Constraint("Vertical", 11),
    Sketcher.Constraint("Vertical", 16),
    Sketcher.Constraint("Vertical", 21),
    Sketcher.Constraint("Vertical", 26),
    Sketcher.Constraint("Vertical", 31),
    Sketcher.Constraint("Vertical", 36),
    Sketcher.Constraint("Vertical", 41),
    Sketcher.Constraint("Vertical", 46),
    Sketcher.Constraint("Vertical", 51),
    Sketcher.Constraint("Vertical", 53),
    Sketcher.Constraint("Vertical", 56),
    Sketcher.Constraint("Vertical", 58),
    Sketcher.Constraint("Parallel", 0, 2),
    Sketcher.Constraint("Parallel", 2, 3),
    Sketcher.Constraint("Parallel", 4, 5),
    Sketcher.Constraint("Parallel", 5, 7),
    Sketcher.Constraint("Parallel", 7, 8),
    Sketcher.Constraint("Parallel", 3, 9),
    Sketcher.Constraint("Parallel", 9, 10),
    Sketcher.Constraint("Parallel", 10, 12),
    Sketcher.Constraint("Parallel", 12, 13),
    Sketcher.Constraint("Parallel", 8, 14),
    Sketcher.Constraint("Parallel", 14, 15),
    Sketcher.Constraint("Parallel", 15, 17),
    Sketcher.Constraint("Parallel", 17, 18),
    Sketcher.Constraint("Parallel", 13, 19),
    Sketcher.Constraint("Parallel", 19, 20),
    Sketcher.Constraint("Parallel", 20, 22),
    Sketcher.Constraint("Parallel", 22, 23),
    Sketcher.Constraint("Parallel", 18, 24),
    Sketcher.Constraint("Parallel", 24, 25),
    Sketcher.Constraint("Parallel", 25, 27),
    Sketcher.Constraint("Parallel", 27, 28),
    Sketcher.Constraint("Parallel", 23, 29),
    Sketcher.Constraint("Parallel", 29, 30),
    Sketcher.Constraint("Parallel", 30, 32),
    Sketcher.Constraint("Parallel", 32, 33),
    Sketcher.Constraint("Parallel", 28, 34),
    Sketcher.Constraint("Parallel", 34, 35),
    Sketcher.Constraint("Parallel", 35, 37),
    Sketcher.Constraint("Parallel", 37, 38),
    Sketcher.Constraint("Parallel", 33, 39),
    Sketcher.Constraint("Parallel", 39, 40),
    Sketcher.Constraint("Parallel", 40, 42),
    Sketcher.Constraint("Parallel", 42, 43),
    Sketcher.Constraint("Parallel", 38, 44),
    Sketcher.Constraint("Parallel", 44, 45),
    Sketcher.Constraint("Parallel", 45, 47),
    Sketcher.Constraint("Parallel", 47, 48),
    Sketcher.Constraint("Parallel", 43, 49),
    Sketcher.Constraint("Parallel", 49, 50),
    Sketcher.Constraint("Parallel", 50, 52),
    Sketcher.Constraint("Parallel", 52, 54),
    Sketcher.Constraint("Parallel", 48, 55),
    Sketcher.Constraint("Parallel", 55, 57),
    Sketcher.Constraint("Parallel", 57, 59),
    Sketcher.Constraint("Parallel", 59, 60),
    Sketcher.Constraint("Parallel", 54, 61),
    Sketcher.Constraint("Horizontal", 2, 2, 4, 2),
    Sketcher.Constraint("Horizontal", 1, 2, 5, 2),
    Sketcher.Constraint("Horizontal", 0, 2, 6, 2),
    Sketcher.Constraint("Horizontal", 7, 2, 9, 2),
    Sketcher.Constraint("Horizontal", 12, 2, 14, 2),
    Sketcher.Constraint("Horizontal", 11, 2, 15, 2),
    Sketcher.Constraint("Horizontal", 10, 2, 16, 2),
    Sketcher.Constraint("Horizontal", 17, 2, 19, 2),
    Sketcher.Constraint("Horizontal", 22, 2, 24, 2),
    Sketcher.Constraint("Horizontal", 21, 2, 25, 2),
    Sketcher.Constraint("Horizontal", 20, 2, 26, 2),
    Sketcher.Constraint("Horizontal", 27, 2, 29, 2),
    Sketcher.Constraint("Horizontal", 32, 2, 34, 2),
    Sketcher.Constraint("Horizontal", 31, 2, 35, 2),
    Sketcher.Constraint("Horizontal", 30, 2, 36, 2),
    Sketcher.Constraint("Horizontal", 37, 2, 39, 2),
    Sketcher.Constraint("Horizontal", 42, 2, 44, 2),
    Sketcher.Constraint("Horizontal", 41, 2, 45, 2),
    Sketcher.Constraint("Horizontal", 40, 2, 46, 2),
    Sketcher.Constraint("Horizontal", 47, 2, 49, 2),
    Sketcher.Constraint("Horizontal", 53, 2, 55, 2),
    Sketcher.Constraint("Horizontal", 52, 2, 56, 2),
    Sketcher.Constraint("Horizontal", 51, 2, 57, 2),
    Sketcher.Constraint("Horizontal", 50, 2, 58, 2),
    Sketcher.Constraint("Horizontal", 59, 2, 61, 2),
    Sketcher.Constraint("Vertical", 4, 2, 7, 2),
    Sketcher.Constraint("Vertical", 1, 2, 10, 2),
    Sketcher.Constraint("Vertical", 9, 2, 12, 2),
    Sketcher.Constraint("Vertical", 8, 2, 13, 2),
    Sketcher.Constraint("Vertical", 14, 2, 17, 2),
    Sketcher.Constraint("Vertical", 11, 2, 20, 2),
    Sketcher.Constraint("Vertical", 19, 2, 22, 2),
    Sketcher.Constraint("Vertical", 18, 2, 23, 2),
    Sketcher.Constraint("Vertical", 24, 2, 27, 2),
    Sketcher.Constraint("Vertical", 21, 2, 30, 2),
    Sketcher.Constraint("Vertical", 29, 2, 32, 2),
    Sketcher.Constraint("Vertical", 28, 2, 33, 2),
    Sketcher.Constraint("Vertical", 34, 2, 37, 2),
    Sketcher.Constraint("Vertical", 31, 2, 40, 2),
    Sketcher.Constraint("Vertical", 39, 2, 42, 2),
    Sketcher.Constraint("Vertical", 38, 2, 43, 2),
    Sketcher.Constraint("Vertical", 44, 2, 47, 2),
    Sketcher.Constraint("Vertical", 41, 2, 50, 2),
    Sketcher.Constraint("Vertical", 49, 2, 52, 2),
    Sketcher.Constraint("Vertical", 48, 2, 54, 2),
    Sketcher.Constraint("Vertical", 56, 2, 59, 2),
    Sketcher.Constraint("Equal", 6, 11),
    Sketcher.Constraint("Equal", 16, 21),
    Sketcher.Constraint("Equal", 26, 31),
    Sketcher.Constraint("Equal", 36, 41),
    Sketcher.Constraint("Equal", 46, 51),
    Sketcher.Constraint("Equal", 3, 4),
    Sketcher.Constraint("DistanceY", 1, 1, 1, 2, 10.0),
    Sketcher.Constraint("DistanceY", 53, 1, 53, 2, 20.0),
    Sketcher.Constraint("Angle", 0, Q("-10 deg")),
    Sketcher.Constraint("DistanceY", 0, 2, -1, 1, 160.0),
    Sketcher.Constraint("DistanceY", 10, 2, -1, 1, 140.0),
    Sketcher.Constraint("DistanceY", 20, 2, -1, 1, 120.0),
    Sketcher.Constraint("DistanceY", 30, 2, -1, 1, 100.0),
    Sketcher.Constraint("DistanceY", 40, 2, -1, 1, 80.0),
    Sketcher.Constraint("DistanceY", 50, 2, -1, 1, 60.0),
    Sketcher.Constraint("DistanceX", -1, 1, 0, 2, 107.2),
    Sketcher.Constraint("DistanceX", -1, 1, 2, 2, 62.2),
    Sketcher.Constraint("DistanceX", -1, 1, 3, 2, 52.2),
])
pocket4 = doc.addObject("PartDesign::Pocket", "Pocket003")
body.addObject(pocket4)
pocket4.Profile = sketch9
pocket4.Length = 5

doc.recompute()
